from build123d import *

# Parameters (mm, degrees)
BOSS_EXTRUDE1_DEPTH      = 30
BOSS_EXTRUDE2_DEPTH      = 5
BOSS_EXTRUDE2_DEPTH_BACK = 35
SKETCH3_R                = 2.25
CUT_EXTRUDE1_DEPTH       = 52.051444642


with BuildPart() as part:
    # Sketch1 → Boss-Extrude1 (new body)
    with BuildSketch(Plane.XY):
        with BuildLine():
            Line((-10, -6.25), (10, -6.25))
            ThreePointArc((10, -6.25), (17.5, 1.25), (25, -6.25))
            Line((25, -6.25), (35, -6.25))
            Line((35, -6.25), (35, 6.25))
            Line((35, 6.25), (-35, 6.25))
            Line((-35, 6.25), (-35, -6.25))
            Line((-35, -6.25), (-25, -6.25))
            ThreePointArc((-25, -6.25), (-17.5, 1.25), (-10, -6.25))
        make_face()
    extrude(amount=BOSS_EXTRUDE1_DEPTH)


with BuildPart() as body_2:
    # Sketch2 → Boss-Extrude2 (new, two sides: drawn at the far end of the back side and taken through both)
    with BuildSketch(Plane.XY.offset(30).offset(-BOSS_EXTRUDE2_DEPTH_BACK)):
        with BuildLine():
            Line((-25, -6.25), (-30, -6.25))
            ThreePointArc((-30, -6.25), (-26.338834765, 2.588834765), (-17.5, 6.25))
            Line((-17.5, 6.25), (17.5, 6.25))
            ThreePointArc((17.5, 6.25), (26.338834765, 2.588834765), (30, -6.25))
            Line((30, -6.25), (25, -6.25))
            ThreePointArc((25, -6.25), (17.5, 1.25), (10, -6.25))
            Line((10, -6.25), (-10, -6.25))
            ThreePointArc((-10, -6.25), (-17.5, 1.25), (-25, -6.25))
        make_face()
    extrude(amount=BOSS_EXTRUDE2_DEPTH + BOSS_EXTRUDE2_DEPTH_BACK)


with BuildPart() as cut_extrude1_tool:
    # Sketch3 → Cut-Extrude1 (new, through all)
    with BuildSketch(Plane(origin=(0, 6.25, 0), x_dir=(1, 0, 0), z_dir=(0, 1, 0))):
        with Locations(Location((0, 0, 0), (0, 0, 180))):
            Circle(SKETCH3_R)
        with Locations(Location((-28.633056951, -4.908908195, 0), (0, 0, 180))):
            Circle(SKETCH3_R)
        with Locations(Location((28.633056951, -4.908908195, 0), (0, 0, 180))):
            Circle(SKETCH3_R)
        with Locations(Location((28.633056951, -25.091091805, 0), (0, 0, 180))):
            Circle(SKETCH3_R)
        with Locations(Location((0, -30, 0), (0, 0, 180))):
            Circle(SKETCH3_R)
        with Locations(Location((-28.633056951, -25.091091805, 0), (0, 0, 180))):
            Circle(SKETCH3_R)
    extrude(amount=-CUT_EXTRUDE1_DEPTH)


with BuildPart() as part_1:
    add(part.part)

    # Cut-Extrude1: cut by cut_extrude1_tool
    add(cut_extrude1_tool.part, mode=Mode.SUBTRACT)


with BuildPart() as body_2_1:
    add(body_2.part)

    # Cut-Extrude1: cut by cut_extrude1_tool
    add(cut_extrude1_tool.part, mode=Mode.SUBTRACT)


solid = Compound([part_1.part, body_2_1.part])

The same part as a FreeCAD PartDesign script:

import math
import FreeCAD as App
import Part
import Sketcher

V = App.Vector

doc = App.newDocument("Part")
body = doc.addObject("PartDesign::Body", "Body")

sketch1 = body.newObject("Sketcher::SketchObject", "Sketch")
sketch1.AttachmentSupport = (doc.getObject("XY_Plane"), [""])
sketch1.MapMode = "FlatFace"
sketch1.addGeometry([
    Part.LineSegment(V(-10, -6.25, 0), V(10, -6.25, 0)),
    Part.ArcOfCircle(Part.Circle(V(17.5, -6.25, 0), V(0, 0, 1), 7.5), math.radians(0), math.radians(180)),
    Part.LineSegment(V(25, -6.25, 0), V(35, -6.25, 0)),
    Part.LineSegment(V(35, -6.25, 0), V(35, 6.25, 0)),
    Part.LineSegment(V(35, 6.25, 0), V(-35, 6.25, 0)),
    Part.LineSegment(V(-35, 6.25, 0), V(-35, -6.25, 0)),
    Part.LineSegment(V(-35, -6.25, 0), V(-25, -6.25, 0)),
    Part.ArcOfCircle(Part.Circle(V(-17.5, -6.25, 0), V(0, 0, 1), 7.5), math.radians(0), math.radians(180)),
], False)
sketch1.addConstraint([
    Sketcher.Constraint("Coincident", 0, 2, 1, 2),
    Sketcher.Constraint("Coincident", 1, 1, 2, 1),
    Sketcher.Constraint("Coincident", 2, 2, 3, 1),
    Sketcher.Constraint("Coincident", 3, 2, 4, 1),
    Sketcher.Constraint("Coincident", 4, 2, 5, 1),
    Sketcher.Constraint("Coincident", 5, 2, 6, 1),
    Sketcher.Constraint("Coincident", 6, 2, 7, 2),
    Sketcher.Constraint("Coincident", 7, 1, 0, 1),
    Sketcher.Constraint("Horizontal", 0),
    Sketcher.Constraint("Horizontal", 2),
    Sketcher.Constraint("Vertical", 3),
    Sketcher.Constraint("Horizontal", 4),
    Sketcher.Constraint("Vertical", 5),
    Sketcher.Constraint("Horizontal", 6),
    Sketcher.Constraint("Equal", 1, 7),
    Sketcher.Constraint("Symmetric", 2, 2, 4, 2, -1, 1),
    Sketcher.Constraint("Symmetric", 1, 3, 7, 3, -2),
    Sketcher.Constraint("Horizontal", 7, 3, 0, 2),
    Sketcher.Constraint("Horizontal", 0, 2, 1, 1),
    Sketcher.Constraint("Horizontal", 2, 2, 5, 2),
    Sketcher.Constraint("Radius", 1, 7.5),
    Sketcher.Constraint("DistanceX", 0, 1, 0, 2, 20.0),
    Sketcher.Constraint("DistanceX", 2, 1, 2, 2, 10.0),
    Sketcher.Constraint("DistanceY", 3, 1, 3, 2, 12.5),
])
pad1 = body.newObject("PartDesign::Pad", "Pad")
pad1.Profile = sketch1
pad1.Length = 30
body2 = doc.addObject("PartDesign::Body", "Body001")

sketch2 = body2.newObject("Sketcher::SketchObject", "Sketch001")
sketch2.AttachmentSupport = (doc.getObject("XY_Plane001"), [""])
sketch2.MapMode = "FlatFace"
sketch2.AttachmentOffset = App.Placement(V(0, 0, 30), App.Rotation())
sketch2.addGeometry([
    Part.LineSegment(V(-30, -6.25, 0), V(-25, -6.25, 0)),
    Part.ArcOfCircle(Part.Circle(V(-17.5, -6.25, 0), V(0, 0, 1), 7.5), math.radians(0), math.radians(180)),
    Part.LineSegment(V(-10, -6.25, 0), V(10, -6.25, 0)),
    Part.ArcOfCircle(Part.Circle(V(17.5, -6.25, 0), V(0, 0, 1), 7.5), math.radians(0), math.radians(180)),
    Part.LineSegment(V(25, -6.25, 0), V(30, -6.25, 0)),
    Part.ArcOfCircle(Part.Circle(V(17.5, -6.25, 0), V(0, 0, 1), 12.5), math.radians(0), math.radians(90)),
    Part.LineSegment(V(17.5, 6.25, 0), V(-17.5, 6.25, 0)),
    Part.ArcOfCircle(Part.Circle(V(-17.5, -6.25, 0), V(0, 0, 1), 12.5), math.radians(90), math.radians(180)),
], False)
sketch2.addConstraint([
    Sketcher.Constraint("Coincident", 0, 2, 1, 2),
    Sketcher.Constraint("Coincident", 1, 1, 2, 1),
    Sketcher.Constraint("Coincident", 2, 2, 3, 2),
    Sketcher.Constraint("Coincident", 3, 1, 4, 1),
    Sketcher.Constraint("Coincident", 4, 2, 5, 1),
    Sketcher.Constraint("Tangent", 5, 2, 6, 1),
    Sketcher.Constraint("Tangent", 6, 2, 7, 1),
    Sketcher.Constraint("Coincident", 7, 2, 0, 1),
    Sketcher.Constraint("Horizontal", 0),
    Sketcher.Constraint("Horizontal", 2),
    Sketcher.Constraint("Horizontal", 4),
    Sketcher.Constraint("Horizontal", 6),
    Sketcher.Constraint("Coincident", 5, 3, 3, 3),
    Sketcher.Constraint("Coincident", 7, 3, 1, 3),
    Sketcher.Constraint("Equal", 1, 3),
    Sketcher.Constraint("Equal", 5, 7),
    Sketcher.Constraint("Symmetric", 0, 2, 3, 1, -2),
    Sketcher.Constraint("Horizontal", 7, 3, 0, 2),
    Sketcher.Constraint("Horizontal", 0, 2, 1, 1),
    Sketcher.Constraint("Radius", 1, 7.5),
    Sketcher.Constraint("Radius", 5, 12.5),
    Sketcher.Constraint("DistanceX", 2, 1, 2, 2, 20.0),
    Sketcher.Constraint("DistanceY", 1, 3, -1, 1, 6.25),
])
pad2 = body2.newObject("PartDesign::Pad", "Pad001")
pad2.Profile = sketch2
pad2.Type = "TwoLengths"
pad2.Length = 5
pad2.Length2 = 35
body3 = doc.addObject("PartDesign::Body", "Body002")
body3.AllowCompound = True

sketch3 = body3.newObject("Sketcher::SketchObject", "Sketch002")
sketch3.AttachmentSupport = (doc.getObject("XZ_Plane002"), [""])
sketch3.MapMode = "FlatFace"
sketch3.AttachmentOffset = App.Placement(V(0, 0, -6.25), App.Rotation())
sketch3.addGeometry([
    Part.Circle(V(0, 0, 0), V(0, 0, 1), 2.25),
    Part.Circle(V(-28.633057, 4.908908, 0), V(0, 0, 1), 2.25),
    Part.Circle(V(28.633057, 4.908908, 0), V(0, 0, 1), 2.25),
    Part.Circle(V(28.633057, 25.091092, 0), V(0, 0, 1), 2.25),
    Part.Circle(V(0, 30, 0), V(0, 0, 1), 2.25),
    Part.Circle(V(-28.633057, 25.091092, 0), V(0, 0, 1), 2.25),
], False)
sketch3.addConstraint([
    Sketcher.Constraint("Coincident", 0, 3, -1, 1),
    Sketcher.Constraint("Equal", 0, 1),
    Sketcher.Constraint("Equal", 1, 2),
    Sketcher.Constraint("Equal", 2, 3),
    Sketcher.Constraint("Equal", 3, 4),
    Sketcher.Constraint("Equal", 4, 5),
    Sketcher.Constraint("Symmetric", 1, 3, 2, 3, -2),
    Sketcher.Constraint("Symmetric", 3, 3, 5, 3, -2),
    Sketcher.Constraint("PointOnObject", 4, 3, -2),
    Sketcher.Constraint("Vertical", 2, 3, 3, 3),
    Sketcher.Constraint("Diameter", 0, 4.5),
    Sketcher.Constraint("DistanceY", -1, 1, 4, 3, 30.0),
    Sketcher.Constraint("DistanceY", -1, 1, 1, 3, 4.908908),
    Sketcher.Constraint("DistanceY", -1, 1, 3, 3, 25.091092),
    Sketcher.Constraint("DistanceX", 1, 3, -1, 1, 28.633057),
])
pad3 = body3.newObject("PartDesign::Pad", "Pad002")
pad3.Profile = sketch3
pad3.Length = 52.051445
doc.recompute()

body4 = doc.addObject("PartDesign::Body", "Body003")
body4.BaseFeature = body3
boolean = body.newObject("PartDesign::Boolean", "Boolean")
boolean.Type = "Cut"
boolean.addObjects([body4])
doc.recompute()

boolean2 = body2.newObject("PartDesign::Boolean", "Boolean001")
boolean2.Type = "Cut"
boolean2.addObjects([body3])

doc.recompute()
